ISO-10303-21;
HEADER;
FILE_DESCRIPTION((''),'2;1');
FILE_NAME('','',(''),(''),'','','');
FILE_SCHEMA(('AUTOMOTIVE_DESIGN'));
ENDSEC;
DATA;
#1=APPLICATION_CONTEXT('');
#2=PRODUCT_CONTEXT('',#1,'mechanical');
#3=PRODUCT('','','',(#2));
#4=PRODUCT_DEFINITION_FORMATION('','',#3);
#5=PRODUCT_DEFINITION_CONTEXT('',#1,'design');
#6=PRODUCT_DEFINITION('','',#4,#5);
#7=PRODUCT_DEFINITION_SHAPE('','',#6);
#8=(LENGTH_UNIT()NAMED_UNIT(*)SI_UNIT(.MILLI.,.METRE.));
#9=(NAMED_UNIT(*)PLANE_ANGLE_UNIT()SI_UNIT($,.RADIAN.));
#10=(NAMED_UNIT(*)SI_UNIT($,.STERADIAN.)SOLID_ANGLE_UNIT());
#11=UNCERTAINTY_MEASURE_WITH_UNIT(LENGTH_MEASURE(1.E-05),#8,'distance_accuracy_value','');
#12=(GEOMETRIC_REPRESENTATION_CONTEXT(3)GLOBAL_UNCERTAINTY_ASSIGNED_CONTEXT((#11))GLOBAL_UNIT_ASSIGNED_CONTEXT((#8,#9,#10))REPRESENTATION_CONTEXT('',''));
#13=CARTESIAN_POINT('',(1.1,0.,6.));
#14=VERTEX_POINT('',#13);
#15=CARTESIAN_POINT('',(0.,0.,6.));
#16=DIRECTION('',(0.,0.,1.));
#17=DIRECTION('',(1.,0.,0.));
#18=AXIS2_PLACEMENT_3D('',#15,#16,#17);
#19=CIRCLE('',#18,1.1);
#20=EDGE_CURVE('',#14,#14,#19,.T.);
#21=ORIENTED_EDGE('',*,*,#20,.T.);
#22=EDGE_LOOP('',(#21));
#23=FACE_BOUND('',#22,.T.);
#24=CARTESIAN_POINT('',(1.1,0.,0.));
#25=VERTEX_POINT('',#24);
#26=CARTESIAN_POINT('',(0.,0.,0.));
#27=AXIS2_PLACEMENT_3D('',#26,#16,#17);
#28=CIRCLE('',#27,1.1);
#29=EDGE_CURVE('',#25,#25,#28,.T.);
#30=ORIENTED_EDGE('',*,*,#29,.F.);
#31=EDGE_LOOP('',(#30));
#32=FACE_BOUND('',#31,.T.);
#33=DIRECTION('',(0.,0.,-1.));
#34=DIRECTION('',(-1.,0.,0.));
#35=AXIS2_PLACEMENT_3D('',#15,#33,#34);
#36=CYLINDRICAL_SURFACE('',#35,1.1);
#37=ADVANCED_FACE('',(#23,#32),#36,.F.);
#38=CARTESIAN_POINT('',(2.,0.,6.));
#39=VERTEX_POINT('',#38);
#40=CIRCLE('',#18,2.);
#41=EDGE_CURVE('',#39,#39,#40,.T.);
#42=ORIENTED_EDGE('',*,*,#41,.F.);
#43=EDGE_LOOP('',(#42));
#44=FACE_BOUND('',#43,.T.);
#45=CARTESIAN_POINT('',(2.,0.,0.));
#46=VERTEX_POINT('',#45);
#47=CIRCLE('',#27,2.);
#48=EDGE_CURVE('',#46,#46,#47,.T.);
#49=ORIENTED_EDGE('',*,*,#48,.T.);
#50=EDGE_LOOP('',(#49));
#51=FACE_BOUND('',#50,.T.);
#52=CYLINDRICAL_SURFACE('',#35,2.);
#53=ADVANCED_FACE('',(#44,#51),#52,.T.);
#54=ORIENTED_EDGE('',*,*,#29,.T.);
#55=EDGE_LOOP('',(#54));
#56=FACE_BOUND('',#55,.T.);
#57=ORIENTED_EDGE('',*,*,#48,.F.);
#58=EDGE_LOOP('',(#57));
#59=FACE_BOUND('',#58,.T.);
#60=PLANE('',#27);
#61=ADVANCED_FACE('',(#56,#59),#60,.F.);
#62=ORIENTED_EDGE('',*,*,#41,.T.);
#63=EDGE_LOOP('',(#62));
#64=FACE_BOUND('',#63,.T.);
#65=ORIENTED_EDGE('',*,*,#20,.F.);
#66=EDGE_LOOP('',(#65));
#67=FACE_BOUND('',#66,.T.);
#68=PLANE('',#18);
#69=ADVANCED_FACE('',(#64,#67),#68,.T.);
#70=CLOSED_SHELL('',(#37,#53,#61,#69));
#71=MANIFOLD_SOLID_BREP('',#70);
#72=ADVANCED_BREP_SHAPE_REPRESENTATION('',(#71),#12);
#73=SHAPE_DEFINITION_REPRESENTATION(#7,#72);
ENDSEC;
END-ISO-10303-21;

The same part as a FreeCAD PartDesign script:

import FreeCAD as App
import Part
import Sketcher
from FreeCAD import Vector

doc = App.newDocument("Part")
params = doc.addObject("Spreadsheet::Sheet", "Params")
for row, (alias, value) in enumerate([
    ("sketch1_diameter", "4 mm"),
    ("sketch1_diameter2", "2.2 mm"),
    ("pad1_length", "6 mm"),
], start=1):
    params.set(f"A{row}", alias)
    params.set(f"B{row}", "=" + value)
    params.setAlias(f"B{row}", alias)

body = doc.addObject("PartDesign::Body", "Body")

# Sketch on XY plane
sketch1 = body.newObject("Sketcher::SketchObject", "Sketch")
sketch1.AttachmentSupport = (doc.getObject("XY_Plane"), [""])
sketch1.MapMode = "FlatFace"
sketch1.addGeometry(Part.Circle(Vector(0, 0, 0), Vector(0, 0, 1), 2), False)
sketch1.addGeometry(Part.Circle(Vector(0, 0, 0), Vector(0, 0, 1), 1.1), False)
sketch1.addConstraint(Sketcher.Constraint("Coincident", 0, 3, -1, 1))
sketch1.addConstraint(Sketcher.Constraint("Coincident", 1, 3, -1, 1))
sketch1.addConstraint(Sketcher.Constraint("Diameter", 0, 4.0))
sketch1.addConstraint(Sketcher.Constraint("Diameter", 1, 2.2))
sketch1.setExpression("Constraints[2]", "Params.sketch1_diameter")
sketch1.setExpression("Constraints[3]", "Params.sketch1_diameter2")
pad1 = body.newObject("PartDesign::Pad", "Pad")
pad1.Profile = sketch1
pad1.setExpression("Length", "Params.pad1_length")

doc.recompute()
